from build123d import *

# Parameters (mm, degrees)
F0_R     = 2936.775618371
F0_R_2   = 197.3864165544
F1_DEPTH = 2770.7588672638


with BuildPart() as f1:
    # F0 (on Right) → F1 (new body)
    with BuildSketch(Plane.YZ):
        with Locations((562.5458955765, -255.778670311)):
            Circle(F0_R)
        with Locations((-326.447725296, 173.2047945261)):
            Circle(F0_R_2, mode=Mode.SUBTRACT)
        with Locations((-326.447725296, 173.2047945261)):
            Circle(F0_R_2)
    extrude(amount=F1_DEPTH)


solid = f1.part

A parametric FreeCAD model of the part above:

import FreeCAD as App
import Part
import Sketcher
from FreeCAD import Vector
Q = App.Units.Quantity

doc = App.newDocument("Part")
body = doc.addObject("PartDesign::Body", "Body")

# Sketch on YZ plane
sketch1 = body.newObject("Sketcher::SketchObject", "Sketch")
sketch1.AttachmentSupport = (doc.getObject("YZ_Plane"), [""])
sketch1.MapMode = "FlatFace"
sketch1.addGeometry(Part.Circle(Vector(563, -256, 0), Vector(0, 0, 1), 2937), False)
sketch1.addConstraint([
    Sketcher.Constraint("Diameter", 0, Q("5873.551237 mm")),
    Sketcher.Constraint("DistanceY", 0, 3, -1, 1, Q("255.77867 mm")),
    Sketcher.Constraint("DistanceX", -1, 1, 0, 3, Q("562.545896 mm")),
])
pad1 = body.newObject("PartDesign::Pad", "Pad")
pad1.Profile = sketch1
pad1.Length = 2770.758867

doc.recompute()
